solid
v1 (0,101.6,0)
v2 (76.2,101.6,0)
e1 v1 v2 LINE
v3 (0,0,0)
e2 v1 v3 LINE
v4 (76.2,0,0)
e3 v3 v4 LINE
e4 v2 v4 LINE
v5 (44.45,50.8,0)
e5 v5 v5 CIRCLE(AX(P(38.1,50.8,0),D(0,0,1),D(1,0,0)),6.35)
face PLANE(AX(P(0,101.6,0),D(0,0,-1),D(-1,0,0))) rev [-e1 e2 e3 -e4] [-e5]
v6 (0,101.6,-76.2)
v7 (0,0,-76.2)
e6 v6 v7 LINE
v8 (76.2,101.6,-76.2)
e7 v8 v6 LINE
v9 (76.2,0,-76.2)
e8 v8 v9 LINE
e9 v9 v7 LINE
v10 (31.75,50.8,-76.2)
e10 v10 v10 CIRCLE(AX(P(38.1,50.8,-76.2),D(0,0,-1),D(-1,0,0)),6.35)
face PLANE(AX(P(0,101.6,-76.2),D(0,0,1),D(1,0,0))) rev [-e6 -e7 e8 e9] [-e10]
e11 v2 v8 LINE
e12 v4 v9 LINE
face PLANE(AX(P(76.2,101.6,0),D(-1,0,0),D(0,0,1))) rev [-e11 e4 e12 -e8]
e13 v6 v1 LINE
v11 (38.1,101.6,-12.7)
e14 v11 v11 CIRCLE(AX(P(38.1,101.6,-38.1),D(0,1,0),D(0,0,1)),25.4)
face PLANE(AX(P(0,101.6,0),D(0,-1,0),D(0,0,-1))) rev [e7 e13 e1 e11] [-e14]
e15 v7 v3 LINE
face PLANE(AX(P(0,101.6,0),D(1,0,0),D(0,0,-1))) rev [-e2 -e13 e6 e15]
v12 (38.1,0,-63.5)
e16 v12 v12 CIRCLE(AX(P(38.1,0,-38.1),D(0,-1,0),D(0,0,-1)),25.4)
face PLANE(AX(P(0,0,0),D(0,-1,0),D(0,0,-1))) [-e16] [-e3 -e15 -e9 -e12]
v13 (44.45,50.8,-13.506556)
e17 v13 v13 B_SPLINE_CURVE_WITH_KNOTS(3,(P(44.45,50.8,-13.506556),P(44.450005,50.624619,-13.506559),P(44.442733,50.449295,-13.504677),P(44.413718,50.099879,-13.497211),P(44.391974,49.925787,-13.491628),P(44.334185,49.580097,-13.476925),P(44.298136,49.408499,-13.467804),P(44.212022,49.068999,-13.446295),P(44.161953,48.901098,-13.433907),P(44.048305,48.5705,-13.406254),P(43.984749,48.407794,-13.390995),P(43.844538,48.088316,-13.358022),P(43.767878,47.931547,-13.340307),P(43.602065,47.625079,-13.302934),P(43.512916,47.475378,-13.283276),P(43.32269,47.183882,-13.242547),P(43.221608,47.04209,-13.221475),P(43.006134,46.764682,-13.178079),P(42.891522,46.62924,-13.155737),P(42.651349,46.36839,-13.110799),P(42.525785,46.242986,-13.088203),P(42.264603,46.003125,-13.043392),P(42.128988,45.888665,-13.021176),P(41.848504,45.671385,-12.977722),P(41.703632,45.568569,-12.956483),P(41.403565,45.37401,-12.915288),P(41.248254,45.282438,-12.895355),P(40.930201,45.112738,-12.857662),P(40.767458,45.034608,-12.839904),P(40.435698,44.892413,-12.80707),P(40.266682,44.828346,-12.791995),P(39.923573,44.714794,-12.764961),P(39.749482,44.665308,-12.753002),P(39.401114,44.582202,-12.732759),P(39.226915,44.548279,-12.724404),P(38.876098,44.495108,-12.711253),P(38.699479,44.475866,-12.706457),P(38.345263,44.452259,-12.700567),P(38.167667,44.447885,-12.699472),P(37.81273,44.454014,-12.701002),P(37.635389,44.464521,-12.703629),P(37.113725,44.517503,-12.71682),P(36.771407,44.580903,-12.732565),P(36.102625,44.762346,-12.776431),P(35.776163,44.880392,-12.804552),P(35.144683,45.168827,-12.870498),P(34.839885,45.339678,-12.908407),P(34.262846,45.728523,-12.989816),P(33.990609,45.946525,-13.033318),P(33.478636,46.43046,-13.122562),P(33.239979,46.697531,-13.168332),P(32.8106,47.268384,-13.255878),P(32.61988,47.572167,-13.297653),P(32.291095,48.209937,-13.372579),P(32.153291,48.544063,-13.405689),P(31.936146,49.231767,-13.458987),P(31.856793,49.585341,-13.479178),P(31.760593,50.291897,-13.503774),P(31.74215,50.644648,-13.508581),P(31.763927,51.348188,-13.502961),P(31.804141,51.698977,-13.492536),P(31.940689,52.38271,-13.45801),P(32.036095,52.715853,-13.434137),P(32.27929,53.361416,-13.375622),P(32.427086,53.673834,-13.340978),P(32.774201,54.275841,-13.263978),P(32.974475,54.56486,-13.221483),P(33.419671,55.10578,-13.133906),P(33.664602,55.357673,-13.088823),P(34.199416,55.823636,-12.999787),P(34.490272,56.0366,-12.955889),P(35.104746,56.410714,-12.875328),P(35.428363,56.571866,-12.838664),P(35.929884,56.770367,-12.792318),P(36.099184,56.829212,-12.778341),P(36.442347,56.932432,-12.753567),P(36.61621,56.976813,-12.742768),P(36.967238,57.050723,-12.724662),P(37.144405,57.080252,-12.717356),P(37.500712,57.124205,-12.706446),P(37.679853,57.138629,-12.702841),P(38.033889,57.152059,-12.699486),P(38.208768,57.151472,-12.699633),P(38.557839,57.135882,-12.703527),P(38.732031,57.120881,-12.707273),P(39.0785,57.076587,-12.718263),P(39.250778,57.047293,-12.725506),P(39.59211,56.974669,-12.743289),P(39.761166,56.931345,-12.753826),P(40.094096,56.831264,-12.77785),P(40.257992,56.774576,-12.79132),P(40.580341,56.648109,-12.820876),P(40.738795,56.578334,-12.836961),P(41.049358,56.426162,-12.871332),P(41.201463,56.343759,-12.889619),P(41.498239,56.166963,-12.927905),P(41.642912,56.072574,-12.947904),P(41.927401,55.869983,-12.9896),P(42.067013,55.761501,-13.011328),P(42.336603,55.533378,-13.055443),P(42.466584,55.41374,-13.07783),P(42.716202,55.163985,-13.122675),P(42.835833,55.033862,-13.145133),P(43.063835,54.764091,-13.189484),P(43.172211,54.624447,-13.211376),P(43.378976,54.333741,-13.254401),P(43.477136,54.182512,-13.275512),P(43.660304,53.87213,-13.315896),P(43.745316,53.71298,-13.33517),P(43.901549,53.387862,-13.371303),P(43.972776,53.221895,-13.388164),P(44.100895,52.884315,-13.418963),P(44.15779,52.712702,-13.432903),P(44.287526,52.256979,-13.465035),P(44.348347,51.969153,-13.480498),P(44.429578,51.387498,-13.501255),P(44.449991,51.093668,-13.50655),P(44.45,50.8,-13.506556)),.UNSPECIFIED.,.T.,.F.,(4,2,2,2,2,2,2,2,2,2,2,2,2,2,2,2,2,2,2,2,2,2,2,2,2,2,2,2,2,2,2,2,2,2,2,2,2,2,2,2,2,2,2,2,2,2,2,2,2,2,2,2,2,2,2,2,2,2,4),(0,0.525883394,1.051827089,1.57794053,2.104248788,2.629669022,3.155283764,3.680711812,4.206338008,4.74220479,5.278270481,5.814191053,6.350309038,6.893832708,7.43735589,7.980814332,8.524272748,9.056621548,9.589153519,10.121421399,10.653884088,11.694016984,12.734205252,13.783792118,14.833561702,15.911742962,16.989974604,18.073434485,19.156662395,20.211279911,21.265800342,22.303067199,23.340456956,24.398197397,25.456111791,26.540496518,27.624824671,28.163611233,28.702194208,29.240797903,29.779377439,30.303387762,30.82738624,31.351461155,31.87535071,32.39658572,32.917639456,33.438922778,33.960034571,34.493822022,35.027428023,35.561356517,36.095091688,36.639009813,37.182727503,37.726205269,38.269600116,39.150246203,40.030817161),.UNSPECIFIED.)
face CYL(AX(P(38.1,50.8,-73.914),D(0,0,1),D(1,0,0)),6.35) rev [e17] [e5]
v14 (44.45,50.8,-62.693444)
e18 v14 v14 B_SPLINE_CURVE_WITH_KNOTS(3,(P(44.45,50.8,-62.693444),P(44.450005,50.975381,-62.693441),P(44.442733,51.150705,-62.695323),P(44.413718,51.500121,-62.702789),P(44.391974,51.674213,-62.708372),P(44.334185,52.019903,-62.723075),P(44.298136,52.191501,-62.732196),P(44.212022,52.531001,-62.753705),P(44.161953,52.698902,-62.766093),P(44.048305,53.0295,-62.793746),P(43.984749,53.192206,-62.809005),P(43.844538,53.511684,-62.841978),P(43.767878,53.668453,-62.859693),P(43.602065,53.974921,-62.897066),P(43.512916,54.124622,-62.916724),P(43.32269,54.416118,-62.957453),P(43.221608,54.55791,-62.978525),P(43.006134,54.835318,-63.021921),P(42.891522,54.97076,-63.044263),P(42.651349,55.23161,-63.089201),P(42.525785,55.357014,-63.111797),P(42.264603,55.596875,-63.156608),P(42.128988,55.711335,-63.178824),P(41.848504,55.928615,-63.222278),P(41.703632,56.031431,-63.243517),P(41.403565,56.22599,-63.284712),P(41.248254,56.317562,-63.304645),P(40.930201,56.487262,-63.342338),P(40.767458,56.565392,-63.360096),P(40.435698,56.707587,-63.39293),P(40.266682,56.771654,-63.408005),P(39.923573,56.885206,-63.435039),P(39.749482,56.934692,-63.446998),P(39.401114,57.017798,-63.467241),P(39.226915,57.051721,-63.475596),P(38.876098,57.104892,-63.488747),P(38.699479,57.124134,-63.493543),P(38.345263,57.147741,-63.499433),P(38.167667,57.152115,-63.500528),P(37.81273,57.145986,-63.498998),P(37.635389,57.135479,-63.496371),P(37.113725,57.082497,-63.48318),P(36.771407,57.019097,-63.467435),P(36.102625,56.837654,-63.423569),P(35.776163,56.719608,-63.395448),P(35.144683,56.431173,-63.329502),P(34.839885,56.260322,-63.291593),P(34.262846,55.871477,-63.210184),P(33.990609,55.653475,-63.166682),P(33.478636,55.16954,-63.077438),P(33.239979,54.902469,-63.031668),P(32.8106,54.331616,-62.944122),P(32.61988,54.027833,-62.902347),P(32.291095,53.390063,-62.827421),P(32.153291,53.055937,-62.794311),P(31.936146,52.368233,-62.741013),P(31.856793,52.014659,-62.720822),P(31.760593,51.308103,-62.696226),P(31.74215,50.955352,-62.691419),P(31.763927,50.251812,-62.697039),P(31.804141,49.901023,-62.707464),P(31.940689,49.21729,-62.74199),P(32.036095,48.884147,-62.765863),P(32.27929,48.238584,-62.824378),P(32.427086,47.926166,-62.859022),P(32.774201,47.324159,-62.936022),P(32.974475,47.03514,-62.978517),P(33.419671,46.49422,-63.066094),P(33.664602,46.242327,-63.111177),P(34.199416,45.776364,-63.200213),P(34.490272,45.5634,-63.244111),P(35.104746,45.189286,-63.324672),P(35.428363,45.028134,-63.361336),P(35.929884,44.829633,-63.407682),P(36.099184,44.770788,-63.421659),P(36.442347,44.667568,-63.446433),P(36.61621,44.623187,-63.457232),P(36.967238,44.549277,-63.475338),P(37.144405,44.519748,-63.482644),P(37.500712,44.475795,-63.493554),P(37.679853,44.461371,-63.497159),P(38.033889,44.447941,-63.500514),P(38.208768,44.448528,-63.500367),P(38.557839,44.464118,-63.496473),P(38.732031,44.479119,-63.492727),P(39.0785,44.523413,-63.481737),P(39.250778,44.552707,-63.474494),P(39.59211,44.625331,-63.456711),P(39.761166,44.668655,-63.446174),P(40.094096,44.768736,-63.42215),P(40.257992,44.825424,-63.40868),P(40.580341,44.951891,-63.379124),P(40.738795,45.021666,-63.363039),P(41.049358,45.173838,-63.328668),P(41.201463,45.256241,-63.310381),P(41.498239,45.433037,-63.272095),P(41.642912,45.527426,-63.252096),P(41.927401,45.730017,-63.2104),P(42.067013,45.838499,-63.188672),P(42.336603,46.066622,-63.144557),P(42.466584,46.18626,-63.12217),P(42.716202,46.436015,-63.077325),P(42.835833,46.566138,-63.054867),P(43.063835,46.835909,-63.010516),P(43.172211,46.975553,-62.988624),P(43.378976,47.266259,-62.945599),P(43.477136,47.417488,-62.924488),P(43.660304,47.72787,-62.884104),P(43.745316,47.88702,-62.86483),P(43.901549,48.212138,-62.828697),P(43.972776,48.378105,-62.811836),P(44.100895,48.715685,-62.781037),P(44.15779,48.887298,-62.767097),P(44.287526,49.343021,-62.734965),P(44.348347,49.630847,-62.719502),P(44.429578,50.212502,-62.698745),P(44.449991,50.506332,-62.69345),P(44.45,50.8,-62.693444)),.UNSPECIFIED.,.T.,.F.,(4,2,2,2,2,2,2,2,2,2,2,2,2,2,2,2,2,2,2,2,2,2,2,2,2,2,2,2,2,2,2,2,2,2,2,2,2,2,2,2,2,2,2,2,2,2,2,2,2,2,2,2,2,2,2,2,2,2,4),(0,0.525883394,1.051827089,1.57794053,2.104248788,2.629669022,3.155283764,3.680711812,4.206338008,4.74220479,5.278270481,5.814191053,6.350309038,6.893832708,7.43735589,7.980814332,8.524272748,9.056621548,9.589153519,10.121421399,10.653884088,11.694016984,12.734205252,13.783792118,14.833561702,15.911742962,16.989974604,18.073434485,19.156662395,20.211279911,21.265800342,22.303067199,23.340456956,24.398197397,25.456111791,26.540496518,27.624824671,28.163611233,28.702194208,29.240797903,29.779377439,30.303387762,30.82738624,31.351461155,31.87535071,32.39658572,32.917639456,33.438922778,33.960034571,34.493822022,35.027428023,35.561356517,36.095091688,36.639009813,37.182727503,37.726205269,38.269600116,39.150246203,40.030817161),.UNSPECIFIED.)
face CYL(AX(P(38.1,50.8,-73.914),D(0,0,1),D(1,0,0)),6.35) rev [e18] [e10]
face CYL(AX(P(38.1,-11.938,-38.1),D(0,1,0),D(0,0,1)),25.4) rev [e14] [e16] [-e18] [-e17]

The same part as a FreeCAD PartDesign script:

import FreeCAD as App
import Part
import Sketcher
from FreeCAD import Vector
Q = App.Units.Quantity


def add_polygon(sketch, points):
    """Adds a closed chain of lines whose ends are joined by coincident constraints."""
    first, n = sketch.GeometryCount, len(points)
    for a, b in zip(points, points[1:] + points[:1]):
        sketch.addGeometry(Part.LineSegment(App.Vector(*a, 0), App.Vector(*b, 0)), False)
    for i in range(n):
        sketch.addConstraint(Sketcher.Constraint("Coincident", first + i, 2, first + (i + 1) % n, 1))

doc = App.newDocument("Part")
params = doc.addObject("Spreadsheet::Sheet", "Params")
for row, (alias, value) in enumerate([
    ("sketch1_width", "3 in"),
    ("pad1_length", "4 in"),
    ("sketch2_diameter", "0.5 in"),
    ("pocket1_length", "2.91 in"),
    ("sketch3_diameter", "2 in"),
    ("pocket2_length", "4.47 in"),
    ("sketch4_diameter", "0.5 in"),
    ("pocket3_length", "0.71 in"),
], start=1):
    params.set(f"A{row}", alias)
    params.set(f"B{row}", "=" + value)
    params.setAlias(f"B{row}", alias)

body = doc.addObject("PartDesign::Body", "Body")

# Sketch on XZ plane
sketch1 = doc.addObject("Sketcher::SketchObject", "Sketch")
body.addObject(sketch1)
sketch1.AttachmentSupport = (doc.XZ_Plane, [""])
sketch1.MapMode = "FlatFace"
add_polygon(sketch1, [(0, -76.2), (0, 0), (76.2, 0), (76.2, -76.2)])  # lines 0-3
sketch1.addConstraint(Sketcher.Constraint("Vertical", 0))
sketch1.addConstraint(Sketcher.Constraint("Horizontal", 1))
sketch1.addConstraint(Sketcher.Constraint("Vertical", 2))
sketch1.addConstraint(Sketcher.Constraint("Horizontal", 3))
sketch1.addConstraint(Sketcher.Constraint("Coincident", 0, 2, -1, 1))
sketch1.addConstraint(Sketcher.Constraint("Equal", 3, 0))
sketch1.addConstraint(Sketcher.Constraint("DistanceX", 1, 1, 1, 2, Q("3 in")))
sketch1.setExpression("Constraints[10]", "Params.sketch1_width")
pad1 = doc.addObject("PartDesign::Pad", "Pad")
body.addObject(pad1)
pad1.Profile = sketch1
pad1.setExpression("Length", "Params.pad1_length")
pad1.Reversed = True

# Sketch on XY plane
sketch2 = doc.addObject("Sketcher::SketchObject", "Sketch001")
body.addObject(sketch2)
sketch2.AttachmentSupport = (doc.XY_Plane, [""])
sketch2.MapMode = "FlatFace"
sketch2.addGeometry(Part.Circle(Vector(38.1, 50.8, 0), Vector(0, 0, 1), 6.35), False)
sketch2.addConstraint(Sketcher.Constraint("Diameter", 0, Q("0.5 in")))
sketch2.addConstraint(Sketcher.Constraint("DistanceY", -1, 1, 0, 3, Q("2 in")))
sketch2.addConstraint(Sketcher.Constraint("DistanceX", -1, 1, 0, 3, Q("1.5 in")))
sketch2.setExpression("Constraints[0]", "Params.sketch2_diameter")
pocket1 = doc.addObject("PartDesign::Pocket", "Pocket")
body.addObject(pocket1)
pocket1.Profile = sketch2
pocket1.setExpression("Length", "Params.pocket1_length")

# Sketch on XZ plane
sketch3 = doc.addObject("Sketcher::SketchObject", "Sketch002")
body.addObject(sketch3)
sketch3.AttachmentSupport = (doc.XZ_Plane, [""])
sketch3.MapMode = "FlatFace"
sketch3.AttachmentOffset = App.Placement(Vector(0, 0, -4 * 25.4), App.Rotation())
sketch3.addGeometry(Part.Circle(Vector(38.1, -38.1, 0), Vector(0, 0, 1), 25.4), False)
sketch3.addConstraint(Sketcher.Constraint("Diameter", 0, Q("2 in")))
sketch3.addConstraint(Sketcher.Constraint("DistanceX", -1, 1, 0, 3, Q("1.5 in")))
sketch3.addConstraint(Sketcher.Constraint("DistanceY", 0, 3, -1, 1, Q("1.5 in")))
sketch3.setExpression("Constraints[0]", "Params.sketch3_diameter")
pocket2 = doc.addObject("PartDesign::Pocket", "Pocket001")
body.addObject(pocket2)
pocket2.Profile = sketch3
pocket2.setExpression("Length", "Params.pocket2_length")
pocket2.Reversed = True

# Sketch on XY plane
sketch4 = doc.addObject("Sketcher::SketchObject", "Sketch003")
body.addObject(sketch4)
sketch4.AttachmentSupport = (doc.XY_Plane, [""])
sketch4.MapMode = "FlatFace"
sketch4.AttachmentOffset = App.Placement(Vector(0, 0, -3 * 25.4), App.Rotation())
sketch4.addGeometry(Part.Circle(Vector(38.1, 50.8, 0), Vector(0, 0, 1), 6.35), False)
sketch4.addConstraint(Sketcher.Constraint("Diameter", 0, Q("0.5 in")))
sketch4.addConstraint(Sketcher.Constraint("DistanceY", -1, 1, 0, 3, Q("2 in")))
sketch4.addConstraint(Sketcher.Constraint("DistanceX", -1, 1, 0, 3, Q("1.5 in")))
sketch4.setExpression("Constraints[0]", "Params.sketch4_diameter")
pocket3 = doc.addObject("PartDesign::Pocket", "Pocket002")
body.addObject(pocket3)
pocket3.Profile = sketch4
pocket3.setExpression("Length", "Params.pocket3_length")
pocket3.Reversed = True

doc.recompute()
